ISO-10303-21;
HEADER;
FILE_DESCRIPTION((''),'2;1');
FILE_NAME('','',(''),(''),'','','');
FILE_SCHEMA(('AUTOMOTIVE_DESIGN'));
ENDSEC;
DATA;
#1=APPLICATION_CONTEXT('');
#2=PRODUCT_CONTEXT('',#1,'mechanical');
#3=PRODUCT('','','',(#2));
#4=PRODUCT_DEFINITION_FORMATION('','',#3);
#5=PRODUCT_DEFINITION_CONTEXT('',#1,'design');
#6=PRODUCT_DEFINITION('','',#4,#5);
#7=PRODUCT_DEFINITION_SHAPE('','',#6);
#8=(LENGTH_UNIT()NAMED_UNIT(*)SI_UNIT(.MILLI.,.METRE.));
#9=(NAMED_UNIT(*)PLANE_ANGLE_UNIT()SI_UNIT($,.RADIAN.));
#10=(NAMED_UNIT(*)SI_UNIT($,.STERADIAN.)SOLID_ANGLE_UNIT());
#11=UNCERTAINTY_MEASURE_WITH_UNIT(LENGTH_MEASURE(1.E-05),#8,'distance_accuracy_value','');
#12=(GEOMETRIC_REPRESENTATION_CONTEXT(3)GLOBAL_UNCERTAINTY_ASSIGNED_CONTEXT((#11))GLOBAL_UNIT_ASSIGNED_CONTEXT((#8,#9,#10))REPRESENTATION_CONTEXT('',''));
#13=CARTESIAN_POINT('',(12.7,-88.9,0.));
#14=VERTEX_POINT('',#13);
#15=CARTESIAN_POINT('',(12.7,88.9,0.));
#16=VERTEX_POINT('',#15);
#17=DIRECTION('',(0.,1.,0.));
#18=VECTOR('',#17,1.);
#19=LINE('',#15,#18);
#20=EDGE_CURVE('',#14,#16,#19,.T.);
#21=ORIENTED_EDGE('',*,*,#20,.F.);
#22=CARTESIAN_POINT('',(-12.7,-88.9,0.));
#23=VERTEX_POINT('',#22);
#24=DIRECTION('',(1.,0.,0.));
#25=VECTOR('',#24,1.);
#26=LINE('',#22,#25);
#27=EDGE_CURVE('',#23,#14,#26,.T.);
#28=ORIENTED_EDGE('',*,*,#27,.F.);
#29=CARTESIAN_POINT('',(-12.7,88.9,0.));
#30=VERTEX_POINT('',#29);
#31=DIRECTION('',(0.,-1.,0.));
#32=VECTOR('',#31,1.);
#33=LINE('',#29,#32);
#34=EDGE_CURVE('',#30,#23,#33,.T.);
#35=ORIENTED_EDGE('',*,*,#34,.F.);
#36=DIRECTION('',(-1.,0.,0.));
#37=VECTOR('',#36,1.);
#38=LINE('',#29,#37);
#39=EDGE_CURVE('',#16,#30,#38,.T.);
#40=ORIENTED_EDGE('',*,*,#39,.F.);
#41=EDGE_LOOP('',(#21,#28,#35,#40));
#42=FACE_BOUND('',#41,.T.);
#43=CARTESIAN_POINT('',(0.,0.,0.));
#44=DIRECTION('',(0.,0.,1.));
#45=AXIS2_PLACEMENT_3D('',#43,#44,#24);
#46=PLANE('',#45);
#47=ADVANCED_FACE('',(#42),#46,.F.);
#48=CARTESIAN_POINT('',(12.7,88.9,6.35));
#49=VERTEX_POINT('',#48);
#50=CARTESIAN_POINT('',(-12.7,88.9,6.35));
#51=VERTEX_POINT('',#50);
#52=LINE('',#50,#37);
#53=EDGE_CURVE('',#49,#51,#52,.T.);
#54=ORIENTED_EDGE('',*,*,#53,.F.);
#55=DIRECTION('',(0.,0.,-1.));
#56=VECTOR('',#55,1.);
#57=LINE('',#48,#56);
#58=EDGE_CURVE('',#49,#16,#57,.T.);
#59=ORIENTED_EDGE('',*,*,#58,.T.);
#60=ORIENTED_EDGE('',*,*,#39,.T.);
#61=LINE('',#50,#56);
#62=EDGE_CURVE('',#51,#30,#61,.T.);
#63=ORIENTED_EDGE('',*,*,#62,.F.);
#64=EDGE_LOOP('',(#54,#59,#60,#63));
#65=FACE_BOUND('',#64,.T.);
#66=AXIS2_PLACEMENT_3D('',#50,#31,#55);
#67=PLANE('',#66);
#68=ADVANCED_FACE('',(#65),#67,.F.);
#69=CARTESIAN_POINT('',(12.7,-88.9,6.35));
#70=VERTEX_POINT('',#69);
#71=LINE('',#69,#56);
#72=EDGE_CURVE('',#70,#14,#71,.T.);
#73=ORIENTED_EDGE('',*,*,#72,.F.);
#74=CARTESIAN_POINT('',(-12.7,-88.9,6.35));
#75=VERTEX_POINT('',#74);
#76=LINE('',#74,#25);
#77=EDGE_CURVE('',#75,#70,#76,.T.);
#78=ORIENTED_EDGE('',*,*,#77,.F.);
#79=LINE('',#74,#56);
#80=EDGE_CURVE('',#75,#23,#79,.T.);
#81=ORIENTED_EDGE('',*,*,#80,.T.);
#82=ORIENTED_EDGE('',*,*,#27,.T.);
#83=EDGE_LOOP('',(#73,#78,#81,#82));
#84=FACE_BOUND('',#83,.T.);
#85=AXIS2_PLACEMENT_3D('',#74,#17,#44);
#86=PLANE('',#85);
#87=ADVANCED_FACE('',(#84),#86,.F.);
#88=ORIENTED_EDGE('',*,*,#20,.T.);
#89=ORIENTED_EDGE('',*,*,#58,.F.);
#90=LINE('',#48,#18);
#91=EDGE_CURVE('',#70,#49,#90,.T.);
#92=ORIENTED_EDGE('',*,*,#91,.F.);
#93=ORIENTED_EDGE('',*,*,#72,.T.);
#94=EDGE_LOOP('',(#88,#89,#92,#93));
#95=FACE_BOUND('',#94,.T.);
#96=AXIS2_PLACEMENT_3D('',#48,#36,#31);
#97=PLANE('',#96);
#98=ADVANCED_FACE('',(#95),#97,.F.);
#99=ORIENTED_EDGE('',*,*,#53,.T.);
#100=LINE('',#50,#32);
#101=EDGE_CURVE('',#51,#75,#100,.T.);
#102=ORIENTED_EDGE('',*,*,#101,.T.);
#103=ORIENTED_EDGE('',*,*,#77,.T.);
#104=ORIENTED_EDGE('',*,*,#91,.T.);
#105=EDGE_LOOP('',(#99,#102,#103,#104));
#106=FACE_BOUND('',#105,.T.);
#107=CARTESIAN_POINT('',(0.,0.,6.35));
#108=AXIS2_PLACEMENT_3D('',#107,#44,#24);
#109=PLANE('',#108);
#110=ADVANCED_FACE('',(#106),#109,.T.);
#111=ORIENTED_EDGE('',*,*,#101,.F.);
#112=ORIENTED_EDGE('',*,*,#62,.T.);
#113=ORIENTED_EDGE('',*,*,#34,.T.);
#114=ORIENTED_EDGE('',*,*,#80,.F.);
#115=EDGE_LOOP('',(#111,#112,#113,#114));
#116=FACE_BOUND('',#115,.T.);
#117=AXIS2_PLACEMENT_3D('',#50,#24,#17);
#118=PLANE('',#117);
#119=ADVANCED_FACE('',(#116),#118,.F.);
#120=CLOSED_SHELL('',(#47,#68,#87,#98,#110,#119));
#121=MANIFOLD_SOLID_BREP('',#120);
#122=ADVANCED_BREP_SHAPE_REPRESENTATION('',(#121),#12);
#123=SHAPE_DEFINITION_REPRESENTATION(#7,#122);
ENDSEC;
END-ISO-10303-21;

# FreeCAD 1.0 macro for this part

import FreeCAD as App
import Part
import Sketcher

V = App.Vector
Q = App.Units.Quantity

doc = App.newDocument("Part")
body = doc.addObject("PartDesign::Body", "Body")

sketch1 = body.newObject("Sketcher::SketchObject", "Sketch")
sketch1.AttachmentSupport = (doc.getObject("XY_Plane"), [""])
sketch1.MapMode = "FlatFace"
sketch1.addGeometry([
    Part.LineSegment(V(-13, 89, 0), V(-13, -89, 0)),
    Part.LineSegment(V(-13, -89, 0), V(13, -89, 0)),
    Part.LineSegment(V(13, -89, 0), V(13, 89, 0)),
    Part.LineSegment(V(13, 89, 0), V(-13, 89, 0)),
], False)
sketch1.addConstraint([
    Sketcher.Constraint("Coincident", 0, 2, 1, 1),
    Sketcher.Constraint("Coincident", 1, 2, 2, 1),
    Sketcher.Constraint("Coincident", 2, 2, 3, 1),
    Sketcher.Constraint("Coincident", 3, 2, 0, 1),
    Sketcher.Constraint("Vertical", 0),
    Sketcher.Constraint("Horizontal", 1),
    Sketcher.Constraint("Vertical", 2),
    Sketcher.Constraint("Horizontal", 3),
    Sketcher.Constraint("Symmetric", 0, 2, 2, 2, -1, 1),
    Sketcher.Constraint("DistanceX", 1, 1, 1, 2, Q("1 in")),
    Sketcher.Constraint("DistanceY", 0, 2, 0, 1, Q("7 in")),
])
pad1 = body.newObject("PartDesign::Pad", "Pad")
pad1.Profile = sketch1
pad1.Length = Q("0.25 in")

doc.recompute()
